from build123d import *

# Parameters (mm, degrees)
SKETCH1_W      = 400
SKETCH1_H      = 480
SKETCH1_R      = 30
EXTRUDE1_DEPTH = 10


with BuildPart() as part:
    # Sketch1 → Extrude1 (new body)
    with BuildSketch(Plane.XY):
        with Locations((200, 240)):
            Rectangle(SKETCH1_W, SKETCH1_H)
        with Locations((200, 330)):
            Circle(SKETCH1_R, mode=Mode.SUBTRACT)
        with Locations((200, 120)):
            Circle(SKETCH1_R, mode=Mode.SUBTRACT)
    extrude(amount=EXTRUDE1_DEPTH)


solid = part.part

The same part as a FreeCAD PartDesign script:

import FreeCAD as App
import Part
import Sketcher
Q = App.Units.Quantity

doc = App.newDocument("Part")
body = doc.addObject("PartDesign::Body", "Body")

# Sketch on XY plane
sketch1 = body.newObject("Sketcher::SketchObject", "Sketch")
sketch1.AttachmentSupport = (doc.getObject("XY_Plane"), [""])
sketch1.MapMode = "FlatFace"
sketch1.addGeometry([
    Part.LineSegment(App.Vector(0, 480, 0), App.Vector(0, 0, 0)),  # 0
    Part.LineSegment(App.Vector(0, 0, 0), App.Vector(400, 0, 0)),  # 1
    Part.LineSegment(App.Vector(400, 0, 0), App.Vector(400, 480, 0)),  # 2
    Part.LineSegment(App.Vector(400, 480, 0), App.Vector(0, 480, 0)),  # 3
    Part.Circle(App.Vector(200, 120, 0), App.Vector(0, 0, 1), 30),  # 4
    Part.Circle(App.Vector(200, 330, 0), App.Vector(0, 0, 1), 30),  # 5
], False)
sketch1.addConstraint([
    Sketcher.Constraint("Coincident", 0, 2, 1, 1),
    Sketcher.Constraint("Coincident", 1, 2, 2, 1),
    Sketcher.Constraint("Coincident", 2, 2, 3, 1),
    Sketcher.Constraint("Coincident", 3, 2, 0, 1),
    Sketcher.Constraint("Vertical", 0),
    Sketcher.Constraint("Horizontal", 1),
    Sketcher.Constraint("Vertical", 2),
    Sketcher.Constraint("Horizontal", 3),
    Sketcher.Constraint("Coincident", 0, 2, -1, 1),
    Sketcher.Constraint("Equal", 4, 5),
    Sketcher.Constraint("Vertical", 4, 3, 5, 3),
    Sketcher.Constraint("Diameter", 4, Q("60 mm")),
    Sketcher.Constraint("DistanceX", 1, 1, 1, 2, Q("400 mm")),
    Sketcher.Constraint("DistanceY", 0, 2, 0, 1, Q("480 mm")),
    Sketcher.Constraint("DistanceX", -1, 1, 4, 3, Q("200 mm")),
    Sketcher.Constraint("DistanceY", -1, 1, 4, 3, Q("120 mm")),
    Sketcher.Constraint("DistanceY", -1, 1, 5, 3, Q("330 mm")),
])
pad1 = body.newObject("PartDesign::Pad", "Pad")
pad1.Profile = sketch1
pad1.Length = 10

doc.recompute()
